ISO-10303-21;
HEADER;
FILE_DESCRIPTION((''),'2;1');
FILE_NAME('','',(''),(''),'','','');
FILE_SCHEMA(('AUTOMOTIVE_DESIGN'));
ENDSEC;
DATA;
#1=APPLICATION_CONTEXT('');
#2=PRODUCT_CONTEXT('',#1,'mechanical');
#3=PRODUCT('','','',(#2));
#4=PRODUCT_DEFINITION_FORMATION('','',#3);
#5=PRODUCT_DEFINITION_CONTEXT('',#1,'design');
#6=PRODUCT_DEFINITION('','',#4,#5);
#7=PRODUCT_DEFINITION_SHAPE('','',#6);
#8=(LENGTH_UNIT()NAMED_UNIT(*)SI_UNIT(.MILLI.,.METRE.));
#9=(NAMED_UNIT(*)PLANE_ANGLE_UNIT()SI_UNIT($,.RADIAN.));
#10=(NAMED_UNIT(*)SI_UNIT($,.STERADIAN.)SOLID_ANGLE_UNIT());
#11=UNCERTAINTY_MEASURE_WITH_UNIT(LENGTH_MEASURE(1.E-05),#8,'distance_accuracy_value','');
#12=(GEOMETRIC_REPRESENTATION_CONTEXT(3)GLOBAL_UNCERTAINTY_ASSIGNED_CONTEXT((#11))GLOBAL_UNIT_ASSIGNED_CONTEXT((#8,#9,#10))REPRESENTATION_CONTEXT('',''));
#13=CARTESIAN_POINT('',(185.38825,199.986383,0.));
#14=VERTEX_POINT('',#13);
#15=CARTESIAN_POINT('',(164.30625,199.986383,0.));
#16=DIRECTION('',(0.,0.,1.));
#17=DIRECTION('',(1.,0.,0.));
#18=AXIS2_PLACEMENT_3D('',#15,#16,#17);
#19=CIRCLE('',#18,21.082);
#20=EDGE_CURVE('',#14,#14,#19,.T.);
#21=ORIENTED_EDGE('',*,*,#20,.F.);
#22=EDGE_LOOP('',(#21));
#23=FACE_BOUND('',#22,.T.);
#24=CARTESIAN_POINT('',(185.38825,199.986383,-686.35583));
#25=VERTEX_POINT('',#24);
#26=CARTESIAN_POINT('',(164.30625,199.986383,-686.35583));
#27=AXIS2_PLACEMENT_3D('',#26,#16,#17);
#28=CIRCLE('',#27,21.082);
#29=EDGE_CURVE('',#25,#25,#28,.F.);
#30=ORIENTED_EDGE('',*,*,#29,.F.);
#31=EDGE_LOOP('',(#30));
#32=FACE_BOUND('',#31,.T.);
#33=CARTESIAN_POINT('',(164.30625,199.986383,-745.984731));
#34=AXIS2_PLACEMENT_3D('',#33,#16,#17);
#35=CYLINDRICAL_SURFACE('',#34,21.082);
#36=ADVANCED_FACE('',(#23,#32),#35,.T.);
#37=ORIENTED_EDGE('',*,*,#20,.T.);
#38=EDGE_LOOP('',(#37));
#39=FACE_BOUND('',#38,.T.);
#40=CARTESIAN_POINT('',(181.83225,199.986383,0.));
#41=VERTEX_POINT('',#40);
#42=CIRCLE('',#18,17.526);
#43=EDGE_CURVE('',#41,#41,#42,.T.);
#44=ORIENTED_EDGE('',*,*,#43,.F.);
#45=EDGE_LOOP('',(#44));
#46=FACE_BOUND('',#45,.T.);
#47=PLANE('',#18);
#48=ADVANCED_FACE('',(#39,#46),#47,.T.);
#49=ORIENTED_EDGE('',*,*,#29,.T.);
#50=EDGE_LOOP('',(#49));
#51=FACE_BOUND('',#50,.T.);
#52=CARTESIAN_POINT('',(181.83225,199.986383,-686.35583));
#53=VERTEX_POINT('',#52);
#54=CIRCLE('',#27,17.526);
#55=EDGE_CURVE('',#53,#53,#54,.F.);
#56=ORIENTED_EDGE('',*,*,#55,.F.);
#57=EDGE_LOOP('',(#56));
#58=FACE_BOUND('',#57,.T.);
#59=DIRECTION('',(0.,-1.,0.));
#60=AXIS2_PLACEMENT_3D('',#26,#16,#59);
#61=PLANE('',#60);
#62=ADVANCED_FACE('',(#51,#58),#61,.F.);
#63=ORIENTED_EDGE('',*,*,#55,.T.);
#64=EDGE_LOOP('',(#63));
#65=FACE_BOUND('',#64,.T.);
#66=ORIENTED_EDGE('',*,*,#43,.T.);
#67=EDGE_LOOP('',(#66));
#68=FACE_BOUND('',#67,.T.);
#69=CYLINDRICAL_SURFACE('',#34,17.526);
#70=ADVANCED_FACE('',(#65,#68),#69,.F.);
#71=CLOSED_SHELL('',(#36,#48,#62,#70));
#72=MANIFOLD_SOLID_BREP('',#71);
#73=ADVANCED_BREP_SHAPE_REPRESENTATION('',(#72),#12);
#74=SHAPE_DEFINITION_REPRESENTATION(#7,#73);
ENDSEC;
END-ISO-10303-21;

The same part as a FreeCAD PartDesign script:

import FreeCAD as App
import Part
import Sketcher

V = App.Vector
Q = App.Units.Quantity

doc = App.newDocument("Part")
params = doc.addObject("Spreadsheet::Sheet", "Params")
for row, (alias, value) in enumerate([
    ("sketch1_diameter", "1.66 in"),
    ("sketch1_diameter2", "1.38 in"),
    ("pad1_length", "686.35583 mm"),
], start=1):
    params.set(f"A{row}", alias)
    params.set(f"B{row}", "=" + value)
    params.setAlias(f"B{row}", alias)

body = doc.addObject("PartDesign::Body", "Body")

# Sketch on XY plane
sketch1 = body.newObject("Sketcher::SketchObject", "Sketch")
sketch1.AttachmentSupport = (doc.getObject("XY_Plane"), [""])
sketch1.MapMode = "FlatFace"
sketch1.addGeometry([
    Part.Circle(V(164.30625, 199.986383, 0), V(0, 0, 1), 21.082),
    Part.Circle(V(164.30625, 199.986383, 0), V(0, 0, 1), 17.526),
], False)
sketch1.addConstraint([
    Sketcher.Constraint("Coincident", 1, 3, 0, 3),
    Sketcher.Constraint("Diameter", 0, Q("1.66 in")),
    Sketcher.Constraint("Diameter", 1, Q("1.38 in")),
    Sketcher.Constraint("DistanceX", -1, 1, 0, 3, Q("6.46875 in")),
    Sketcher.Constraint("DistanceY", -1, 1, 0, 3, 199.986383),
])
sketch1.setExpression("Constraints[1]", "Params.sketch1_diameter")
sketch1.setExpression("Constraints[2]", "Params.sketch1_diameter2")
pad1 = body.newObject("PartDesign::Pad", "Pad")
pad1.Profile = sketch1
pad1.setExpression("Length", "Params.pad1_length")
pad1.Reversed = True

doc.recompute()
